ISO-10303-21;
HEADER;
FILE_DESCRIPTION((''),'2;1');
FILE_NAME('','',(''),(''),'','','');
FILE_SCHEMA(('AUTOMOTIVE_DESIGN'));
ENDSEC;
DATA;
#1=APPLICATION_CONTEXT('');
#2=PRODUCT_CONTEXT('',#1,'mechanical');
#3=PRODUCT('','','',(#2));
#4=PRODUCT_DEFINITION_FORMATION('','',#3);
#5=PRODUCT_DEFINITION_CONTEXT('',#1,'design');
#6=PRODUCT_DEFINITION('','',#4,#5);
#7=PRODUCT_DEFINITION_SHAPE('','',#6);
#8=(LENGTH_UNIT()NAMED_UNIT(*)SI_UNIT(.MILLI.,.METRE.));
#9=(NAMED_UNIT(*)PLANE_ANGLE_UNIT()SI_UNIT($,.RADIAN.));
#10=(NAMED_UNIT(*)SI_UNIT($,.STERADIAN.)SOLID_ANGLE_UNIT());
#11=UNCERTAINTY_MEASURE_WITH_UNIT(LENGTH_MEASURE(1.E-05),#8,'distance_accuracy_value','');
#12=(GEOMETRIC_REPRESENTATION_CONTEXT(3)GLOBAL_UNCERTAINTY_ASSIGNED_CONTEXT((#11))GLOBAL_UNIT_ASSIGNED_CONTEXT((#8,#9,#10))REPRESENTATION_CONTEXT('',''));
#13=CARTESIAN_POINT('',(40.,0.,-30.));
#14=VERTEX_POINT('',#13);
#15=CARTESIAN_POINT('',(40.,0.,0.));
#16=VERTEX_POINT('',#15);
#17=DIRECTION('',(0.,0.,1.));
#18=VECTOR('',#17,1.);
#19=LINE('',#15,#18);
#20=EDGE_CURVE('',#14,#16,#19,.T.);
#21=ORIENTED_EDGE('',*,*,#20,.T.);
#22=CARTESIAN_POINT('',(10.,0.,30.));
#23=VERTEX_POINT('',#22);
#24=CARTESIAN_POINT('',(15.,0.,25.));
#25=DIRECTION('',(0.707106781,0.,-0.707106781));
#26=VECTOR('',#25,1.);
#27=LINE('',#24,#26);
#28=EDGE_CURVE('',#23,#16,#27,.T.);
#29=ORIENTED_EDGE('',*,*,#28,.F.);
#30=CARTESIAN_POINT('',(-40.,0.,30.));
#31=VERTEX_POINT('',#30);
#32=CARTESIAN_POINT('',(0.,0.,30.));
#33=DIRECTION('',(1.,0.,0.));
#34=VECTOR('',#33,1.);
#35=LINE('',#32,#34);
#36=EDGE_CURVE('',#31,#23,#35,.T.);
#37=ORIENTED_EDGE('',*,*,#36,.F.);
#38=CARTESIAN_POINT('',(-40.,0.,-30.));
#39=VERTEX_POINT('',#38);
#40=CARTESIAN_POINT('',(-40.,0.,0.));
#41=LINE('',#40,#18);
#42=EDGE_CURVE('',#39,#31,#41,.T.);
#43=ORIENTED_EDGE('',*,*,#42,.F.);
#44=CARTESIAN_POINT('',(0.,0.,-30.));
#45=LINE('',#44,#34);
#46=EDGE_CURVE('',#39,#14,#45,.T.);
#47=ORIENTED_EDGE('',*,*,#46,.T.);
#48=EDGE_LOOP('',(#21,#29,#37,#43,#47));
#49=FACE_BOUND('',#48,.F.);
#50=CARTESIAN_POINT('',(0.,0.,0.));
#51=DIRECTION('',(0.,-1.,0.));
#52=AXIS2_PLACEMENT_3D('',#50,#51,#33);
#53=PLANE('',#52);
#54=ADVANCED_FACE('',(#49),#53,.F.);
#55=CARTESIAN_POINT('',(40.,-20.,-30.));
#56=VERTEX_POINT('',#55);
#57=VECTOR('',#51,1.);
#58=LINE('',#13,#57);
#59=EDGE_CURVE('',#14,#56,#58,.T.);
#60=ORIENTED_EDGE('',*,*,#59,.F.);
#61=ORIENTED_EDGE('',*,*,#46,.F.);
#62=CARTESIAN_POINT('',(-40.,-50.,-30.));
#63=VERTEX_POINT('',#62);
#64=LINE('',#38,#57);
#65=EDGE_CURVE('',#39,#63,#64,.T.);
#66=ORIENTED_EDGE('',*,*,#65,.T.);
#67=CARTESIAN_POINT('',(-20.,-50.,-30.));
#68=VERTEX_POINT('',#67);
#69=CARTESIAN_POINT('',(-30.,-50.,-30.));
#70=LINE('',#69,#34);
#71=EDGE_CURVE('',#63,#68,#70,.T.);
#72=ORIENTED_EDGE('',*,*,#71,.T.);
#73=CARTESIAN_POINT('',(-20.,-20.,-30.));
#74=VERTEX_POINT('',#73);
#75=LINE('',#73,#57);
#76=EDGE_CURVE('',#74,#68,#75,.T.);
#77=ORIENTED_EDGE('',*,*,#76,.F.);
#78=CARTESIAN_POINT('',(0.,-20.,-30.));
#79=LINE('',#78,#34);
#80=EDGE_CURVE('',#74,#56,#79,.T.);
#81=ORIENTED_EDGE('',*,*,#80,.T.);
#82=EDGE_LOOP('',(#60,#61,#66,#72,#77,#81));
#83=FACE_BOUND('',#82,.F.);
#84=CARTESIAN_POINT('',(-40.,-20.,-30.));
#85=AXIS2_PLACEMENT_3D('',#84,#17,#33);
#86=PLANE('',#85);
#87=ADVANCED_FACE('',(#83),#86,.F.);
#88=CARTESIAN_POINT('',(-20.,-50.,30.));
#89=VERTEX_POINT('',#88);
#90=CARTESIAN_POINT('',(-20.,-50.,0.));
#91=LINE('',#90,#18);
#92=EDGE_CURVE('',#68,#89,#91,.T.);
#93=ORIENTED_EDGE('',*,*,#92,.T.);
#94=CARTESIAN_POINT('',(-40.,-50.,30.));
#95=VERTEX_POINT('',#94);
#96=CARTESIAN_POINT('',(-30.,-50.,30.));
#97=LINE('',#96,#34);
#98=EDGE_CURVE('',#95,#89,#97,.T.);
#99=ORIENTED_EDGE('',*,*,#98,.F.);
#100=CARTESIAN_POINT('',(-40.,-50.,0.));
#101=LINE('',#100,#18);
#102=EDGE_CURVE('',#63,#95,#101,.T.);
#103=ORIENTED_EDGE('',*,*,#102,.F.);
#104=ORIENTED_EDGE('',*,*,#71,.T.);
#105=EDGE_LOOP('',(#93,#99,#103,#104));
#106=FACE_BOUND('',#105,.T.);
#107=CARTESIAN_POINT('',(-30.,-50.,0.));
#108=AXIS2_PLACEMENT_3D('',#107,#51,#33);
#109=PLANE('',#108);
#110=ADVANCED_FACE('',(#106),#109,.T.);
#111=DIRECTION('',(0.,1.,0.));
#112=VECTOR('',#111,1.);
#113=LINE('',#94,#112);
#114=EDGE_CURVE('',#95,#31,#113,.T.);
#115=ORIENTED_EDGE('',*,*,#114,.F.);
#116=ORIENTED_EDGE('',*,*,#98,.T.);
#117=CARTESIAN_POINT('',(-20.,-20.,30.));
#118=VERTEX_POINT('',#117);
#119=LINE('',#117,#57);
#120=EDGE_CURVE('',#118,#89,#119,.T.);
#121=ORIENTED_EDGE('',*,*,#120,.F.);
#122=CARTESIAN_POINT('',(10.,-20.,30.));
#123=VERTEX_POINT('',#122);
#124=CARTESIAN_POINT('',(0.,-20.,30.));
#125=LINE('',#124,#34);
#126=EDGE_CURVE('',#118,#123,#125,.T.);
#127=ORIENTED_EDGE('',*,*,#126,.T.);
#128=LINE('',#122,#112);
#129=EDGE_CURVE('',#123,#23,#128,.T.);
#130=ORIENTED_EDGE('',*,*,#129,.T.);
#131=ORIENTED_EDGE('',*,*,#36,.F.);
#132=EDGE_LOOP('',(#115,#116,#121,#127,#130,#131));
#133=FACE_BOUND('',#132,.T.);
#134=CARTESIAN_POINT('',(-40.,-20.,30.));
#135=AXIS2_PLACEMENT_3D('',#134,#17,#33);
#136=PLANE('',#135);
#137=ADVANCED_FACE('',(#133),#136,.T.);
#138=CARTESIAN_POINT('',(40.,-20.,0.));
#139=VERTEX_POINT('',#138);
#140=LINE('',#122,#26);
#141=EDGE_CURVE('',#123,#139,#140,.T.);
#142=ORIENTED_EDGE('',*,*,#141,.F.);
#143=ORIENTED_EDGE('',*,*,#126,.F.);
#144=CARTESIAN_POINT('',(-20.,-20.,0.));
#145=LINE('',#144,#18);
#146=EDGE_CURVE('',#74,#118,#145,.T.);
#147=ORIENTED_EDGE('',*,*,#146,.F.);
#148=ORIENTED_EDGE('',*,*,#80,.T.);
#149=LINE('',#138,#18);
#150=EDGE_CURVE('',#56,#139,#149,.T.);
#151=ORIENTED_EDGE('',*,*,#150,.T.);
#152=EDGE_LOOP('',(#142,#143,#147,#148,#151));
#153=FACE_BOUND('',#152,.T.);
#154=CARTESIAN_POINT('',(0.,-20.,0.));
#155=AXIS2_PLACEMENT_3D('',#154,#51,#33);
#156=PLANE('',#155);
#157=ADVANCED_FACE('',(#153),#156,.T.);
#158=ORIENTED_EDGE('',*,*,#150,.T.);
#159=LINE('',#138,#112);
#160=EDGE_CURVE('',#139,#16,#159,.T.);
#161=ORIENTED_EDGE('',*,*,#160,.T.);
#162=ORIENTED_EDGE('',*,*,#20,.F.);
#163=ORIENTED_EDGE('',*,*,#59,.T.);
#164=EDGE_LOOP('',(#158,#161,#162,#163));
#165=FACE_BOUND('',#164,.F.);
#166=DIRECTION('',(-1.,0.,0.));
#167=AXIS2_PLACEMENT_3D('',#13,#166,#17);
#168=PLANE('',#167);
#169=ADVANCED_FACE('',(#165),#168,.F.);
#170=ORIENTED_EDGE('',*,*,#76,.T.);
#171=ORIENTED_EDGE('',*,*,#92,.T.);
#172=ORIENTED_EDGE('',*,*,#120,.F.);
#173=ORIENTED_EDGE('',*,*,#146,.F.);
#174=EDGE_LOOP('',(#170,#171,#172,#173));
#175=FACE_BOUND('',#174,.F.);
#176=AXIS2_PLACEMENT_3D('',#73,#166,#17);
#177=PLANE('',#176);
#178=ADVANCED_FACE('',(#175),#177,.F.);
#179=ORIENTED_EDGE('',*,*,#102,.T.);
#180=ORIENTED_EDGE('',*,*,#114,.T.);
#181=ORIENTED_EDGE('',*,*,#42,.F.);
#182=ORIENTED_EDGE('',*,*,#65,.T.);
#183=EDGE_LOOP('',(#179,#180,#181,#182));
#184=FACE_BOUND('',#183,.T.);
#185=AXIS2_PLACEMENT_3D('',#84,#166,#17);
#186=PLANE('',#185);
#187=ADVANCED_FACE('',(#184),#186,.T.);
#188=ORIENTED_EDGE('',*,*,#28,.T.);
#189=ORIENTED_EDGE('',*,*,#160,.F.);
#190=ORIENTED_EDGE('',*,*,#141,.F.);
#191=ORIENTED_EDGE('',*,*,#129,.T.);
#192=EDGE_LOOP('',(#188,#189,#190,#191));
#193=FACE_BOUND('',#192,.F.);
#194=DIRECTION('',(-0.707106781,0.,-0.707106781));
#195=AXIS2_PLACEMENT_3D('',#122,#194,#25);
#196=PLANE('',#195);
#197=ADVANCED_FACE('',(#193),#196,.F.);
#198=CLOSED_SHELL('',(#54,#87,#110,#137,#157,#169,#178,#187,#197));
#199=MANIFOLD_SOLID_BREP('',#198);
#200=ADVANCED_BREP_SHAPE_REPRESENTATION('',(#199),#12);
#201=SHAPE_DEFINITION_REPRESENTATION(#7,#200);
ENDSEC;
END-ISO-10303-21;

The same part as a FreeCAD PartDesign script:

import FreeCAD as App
import Part
import Sketcher


def add_polygon(sketch, points):
    """Adds a closed chain of lines whose ends are joined by coincident constraints."""
    first, n = sketch.GeometryCount, len(points)
    for a, b in zip(points, points[1:] + points[:1]):
        sketch.addGeometry(Part.LineSegment(App.Vector(*a, 0), App.Vector(*b, 0)), False)
    for i in range(n):
        sketch.addConstraint(Sketcher.Constraint("Coincident", first + i, 2, first + (i + 1) % n, 1))

doc = App.newDocument("Part")
params = doc.addObject("Spreadsheet::Sheet", "Params")
for row, (alias, value) in enumerate([
    ("sketch1_width", "80 mm"),
    ("sketch1_height", "60 mm"),
    ("pad1_length", "20 mm"),
    ("sketch2_width", "20 mm"),
    ("sketch2_height", "60 mm"),
    ("pad2_length", "30 mm"),
    ("sketch3_width", "30 mm"),
], start=1):
    params.set(f"A{row}", alias)
    params.set(f"B{row}", "=" + value)
    params.setAlias(f"B{row}", alias)

body = doc.addObject("PartDesign::Body", "Body")

# Sketch on XZ plane
sketch1 = doc.addObject("Sketcher::SketchObject", "Sketch")
body.addObject(sketch1)
sketch1.AttachmentSupport = (doc.XZ_Plane, [""])
sketch1.MapMode = "FlatFace"
add_polygon(sketch1, [(-40, 30), (-40, -30), (40, -30), (40, 30)])  # lines 0-3
sketch1.addConstraint([
    Sketcher.Constraint("Vertical", 0),
    Sketcher.Constraint("Horizontal", 1),
    Sketcher.Constraint("Vertical", 2),
    Sketcher.Constraint("Horizontal", 3),
    Sketcher.Constraint("Symmetric", 0, 2, 2, 2, -1, 1),
    Sketcher.Constraint("DistanceX", 1, 1, 1, 2, 80.0),
    Sketcher.Constraint("DistanceY", 0, 2, 0, 1, 60.0),
])
sketch1.setExpression("Constraints[9]", "Params.sketch1_width")
sketch1.setExpression("Constraints[10]", "Params.sketch1_height")
pad1 = doc.addObject("PartDesign::Pad", "Pad")
body.addObject(pad1)
pad1.Profile = sketch1
pad1.setExpression("Length", "Params.pad1_length")

# Sketch on XZ plane
sketch2 = doc.addObject("Sketcher::SketchObject", "Sketch001")
body.addObject(sketch2)
sketch2.AttachmentSupport = (doc.XZ_Plane, [""])
sketch2.MapMode = "FlatFace"
sketch2.AttachmentOffset = App.Placement(App.Vector(0, 0, 20), App.Rotation())
add_polygon(sketch2, [(-40, 30), (-40, -30), (-20, -30), (-20, 30)])  # lines 0-3
sketch2.addConstraint([
    Sketcher.Constraint("Vertical", 0),
    Sketcher.Constraint("Horizontal", 1),
    Sketcher.Constraint("Vertical", 2),
    Sketcher.Constraint("Horizontal", 3),
    Sketcher.Constraint("DistanceX", 1, 1, 1, 2, 20.0),
    Sketcher.Constraint("DistanceY", 0, 2, 0, 1, 60.0),
    Sketcher.Constraint("DistanceX", 0, 2, -1, 1, 40.0),
    Sketcher.Constraint("DistanceY", 0, 2, -1, 1, 30.0),
])
sketch2.setExpression("Constraints[8]", "Params.sketch2_width")
sketch2.setExpression("Constraints[9]", "Params.sketch2_height")
pad2 = doc.addObject("PartDesign::Pad", "Pad001")
body.addObject(pad2)
pad2.Profile = sketch2
pad2.setExpression("Length", "Params.pad2_length")

# Sketch on XZ plane
sketch3 = doc.addObject("Sketcher::SketchObject", "Sketch002")
body.addObject(sketch3)
sketch3.AttachmentSupport = (doc.XZ_Plane, [""])
sketch3.MapMode = "FlatFace"
sketch3.AttachmentOffset = App.Placement(App.Vector(0, 0, 20), App.Rotation())
add_polygon(sketch3, [(40, 30), (10, 30), (40, 0)])  # lines 0-2
sketch3.addConstraint([
    Sketcher.Constraint("Horizontal", 0),
    Sketcher.Constraint("Vertical", 2),
    Sketcher.Constraint("PointOnObject", 1, 2, -1),
    Sketcher.Constraint("Equal", 0, 2),
    Sketcher.Constraint("DistanceX", 0, 2, 0, 1, 30.0),
    Sketcher.Constraint("DistanceX", -1, 1, 0, 2, 10.0),
])
sketch3.setExpression("Constraints[7]", "Params.sketch3_width")
pocket1 = doc.addObject("PartDesign::Pocket", "Pocket")
body.addObject(pocket1)
pocket1.Profile = sketch3
pocket1.Type = "ThroughAll"

doc.recompute()
